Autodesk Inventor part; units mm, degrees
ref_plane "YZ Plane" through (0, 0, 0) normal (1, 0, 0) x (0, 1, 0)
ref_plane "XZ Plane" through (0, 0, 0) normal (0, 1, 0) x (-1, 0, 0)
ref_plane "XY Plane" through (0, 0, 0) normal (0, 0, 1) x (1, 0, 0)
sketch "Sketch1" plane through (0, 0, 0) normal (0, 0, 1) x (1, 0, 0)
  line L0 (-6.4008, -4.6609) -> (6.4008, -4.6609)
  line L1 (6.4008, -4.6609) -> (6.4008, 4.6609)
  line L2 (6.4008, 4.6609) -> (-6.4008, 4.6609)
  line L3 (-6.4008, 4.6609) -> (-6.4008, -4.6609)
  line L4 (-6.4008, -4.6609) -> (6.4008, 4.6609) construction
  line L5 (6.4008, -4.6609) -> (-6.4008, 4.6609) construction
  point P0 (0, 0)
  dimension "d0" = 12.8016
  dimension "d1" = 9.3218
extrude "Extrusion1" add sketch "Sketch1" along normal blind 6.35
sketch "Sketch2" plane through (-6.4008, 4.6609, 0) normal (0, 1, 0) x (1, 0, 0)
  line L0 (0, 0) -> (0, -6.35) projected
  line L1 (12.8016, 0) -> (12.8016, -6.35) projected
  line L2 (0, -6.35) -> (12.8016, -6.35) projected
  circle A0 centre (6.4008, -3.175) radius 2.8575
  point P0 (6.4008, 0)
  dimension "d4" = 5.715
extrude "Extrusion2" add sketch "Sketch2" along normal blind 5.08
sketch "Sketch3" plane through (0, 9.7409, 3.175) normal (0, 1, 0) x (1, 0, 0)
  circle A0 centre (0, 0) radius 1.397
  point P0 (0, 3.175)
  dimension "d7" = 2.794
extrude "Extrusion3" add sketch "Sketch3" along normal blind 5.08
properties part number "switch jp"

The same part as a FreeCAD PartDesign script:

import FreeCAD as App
import Part
import Sketcher
Q = App.Units.Quantity

doc = App.newDocument("Part")
body = doc.addObject("PartDesign::Body", "Body")

sketch1 = body.newObject("Sketcher::SketchObject", "Sketch")
sketch1.AttachmentSupport = (doc.getObject("XY_Plane"), [""])
sketch1.MapMode = "FlatFace"
sketch1.addGeometry(Part.LineSegment(App.Vector(-6, 5, 0), App.Vector(-6, -5, 0)), False)
sketch1.addGeometry(Part.LineSegment(App.Vector(-6, -5, 0), App.Vector(6, -5, 0)), False)
sketch1.addGeometry(Part.LineSegment(App.Vector(6, -5, 0), App.Vector(6, 5, 0)), False)
sketch1.addGeometry(Part.LineSegment(App.Vector(6, 5, 0), App.Vector(-6, 5, 0)), False)
sketch1.addConstraint(Sketcher.Constraint("Coincident", 0, 2, 1, 1))
sketch1.addConstraint(Sketcher.Constraint("Coincident", 1, 2, 2, 1))
sketch1.addConstraint(Sketcher.Constraint("Coincident", 2, 2, 3, 1))
sketch1.addConstraint(Sketcher.Constraint("Coincident", 3, 2, 0, 1))
sketch1.addConstraint(Sketcher.Constraint("Vertical", 0))
sketch1.addConstraint(Sketcher.Constraint("Horizontal", 1))
sketch1.addConstraint(Sketcher.Constraint("Vertical", 2))
sketch1.addConstraint(Sketcher.Constraint("Horizontal", 3))
sketch1.addConstraint(Sketcher.Constraint("Symmetric", 0, 2, 2, 2, -1, 1))
sketch1.addConstraint(Sketcher.Constraint("DistanceX", 1, 1, 1, 2, Q("0.504 in")))
sketch1.addConstraint(Sketcher.Constraint("DistanceY", 0, 2, 0, 1, Q("0.367 in")))
pad1 = body.newObject("PartDesign::Pad", "Pad")
pad1.Profile = sketch1
pad1.Length = Q("0.25 in")

sketch2 = body.newObject("Sketcher::SketchObject", "Sketch001")
sketch2.AttachmentSupport = (doc.getObject("XZ_Plane"), [""])
sketch2.MapMode = "FlatFace"
sketch2.AttachmentOffset = App.Placement(App.Vector(0, 0, -0.1835 * 25.4), App.Rotation())
sketch2.addGeometry(Part.Circle(App.Vector(0, 3.2, 0), App.Vector(0, 0, 1), 2.9), False)
sketch2.addConstraint(Sketcher.Constraint("PointOnObject", 0, 3, -2))
sketch2.addConstraint(Sketcher.Constraint("Diameter", 0, Q("0.225 in")))
sketch2.addConstraint(Sketcher.Constraint("DistanceY", -1, 1, 0, 3, Q("0.125 in")))
pad2 = body.newObject("PartDesign::Pad", "Pad001")
pad2.Profile = sketch2
pad2.Length = Q("0.2 in")
pad2.Reversed = True

sketch3 = body.newObject("Sketcher::SketchObject", "Sketch002")
sketch3.AttachmentSupport = (doc.getObject("XZ_Plane"), [""])
sketch3.MapMode = "FlatFace"
sketch3.AttachmentOffset = App.Placement(App.Vector(0, 0, -0.3835 * 25.4), App.Rotation())
sketch3.addGeometry(Part.Circle(App.Vector(0, 3.2, 0), App.Vector(0, 0, 1), 1.4), False)
sketch3.addConstraint(Sketcher.Constraint("PointOnObject", 0, 3, -2))
sketch3.addConstraint(Sketcher.Constraint("Diameter", 0, Q("0.11 in")))
sketch3.addConstraint(Sketcher.Constraint("DistanceY", -1, 1, 0, 3, Q("0.125 in")))
pad3 = body.newObject("PartDesign::Pad", "Pad002")
pad3.Profile = sketch3
pad3.Length = Q("0.2 in")
pad3.Reversed = True

doc.recompute()
